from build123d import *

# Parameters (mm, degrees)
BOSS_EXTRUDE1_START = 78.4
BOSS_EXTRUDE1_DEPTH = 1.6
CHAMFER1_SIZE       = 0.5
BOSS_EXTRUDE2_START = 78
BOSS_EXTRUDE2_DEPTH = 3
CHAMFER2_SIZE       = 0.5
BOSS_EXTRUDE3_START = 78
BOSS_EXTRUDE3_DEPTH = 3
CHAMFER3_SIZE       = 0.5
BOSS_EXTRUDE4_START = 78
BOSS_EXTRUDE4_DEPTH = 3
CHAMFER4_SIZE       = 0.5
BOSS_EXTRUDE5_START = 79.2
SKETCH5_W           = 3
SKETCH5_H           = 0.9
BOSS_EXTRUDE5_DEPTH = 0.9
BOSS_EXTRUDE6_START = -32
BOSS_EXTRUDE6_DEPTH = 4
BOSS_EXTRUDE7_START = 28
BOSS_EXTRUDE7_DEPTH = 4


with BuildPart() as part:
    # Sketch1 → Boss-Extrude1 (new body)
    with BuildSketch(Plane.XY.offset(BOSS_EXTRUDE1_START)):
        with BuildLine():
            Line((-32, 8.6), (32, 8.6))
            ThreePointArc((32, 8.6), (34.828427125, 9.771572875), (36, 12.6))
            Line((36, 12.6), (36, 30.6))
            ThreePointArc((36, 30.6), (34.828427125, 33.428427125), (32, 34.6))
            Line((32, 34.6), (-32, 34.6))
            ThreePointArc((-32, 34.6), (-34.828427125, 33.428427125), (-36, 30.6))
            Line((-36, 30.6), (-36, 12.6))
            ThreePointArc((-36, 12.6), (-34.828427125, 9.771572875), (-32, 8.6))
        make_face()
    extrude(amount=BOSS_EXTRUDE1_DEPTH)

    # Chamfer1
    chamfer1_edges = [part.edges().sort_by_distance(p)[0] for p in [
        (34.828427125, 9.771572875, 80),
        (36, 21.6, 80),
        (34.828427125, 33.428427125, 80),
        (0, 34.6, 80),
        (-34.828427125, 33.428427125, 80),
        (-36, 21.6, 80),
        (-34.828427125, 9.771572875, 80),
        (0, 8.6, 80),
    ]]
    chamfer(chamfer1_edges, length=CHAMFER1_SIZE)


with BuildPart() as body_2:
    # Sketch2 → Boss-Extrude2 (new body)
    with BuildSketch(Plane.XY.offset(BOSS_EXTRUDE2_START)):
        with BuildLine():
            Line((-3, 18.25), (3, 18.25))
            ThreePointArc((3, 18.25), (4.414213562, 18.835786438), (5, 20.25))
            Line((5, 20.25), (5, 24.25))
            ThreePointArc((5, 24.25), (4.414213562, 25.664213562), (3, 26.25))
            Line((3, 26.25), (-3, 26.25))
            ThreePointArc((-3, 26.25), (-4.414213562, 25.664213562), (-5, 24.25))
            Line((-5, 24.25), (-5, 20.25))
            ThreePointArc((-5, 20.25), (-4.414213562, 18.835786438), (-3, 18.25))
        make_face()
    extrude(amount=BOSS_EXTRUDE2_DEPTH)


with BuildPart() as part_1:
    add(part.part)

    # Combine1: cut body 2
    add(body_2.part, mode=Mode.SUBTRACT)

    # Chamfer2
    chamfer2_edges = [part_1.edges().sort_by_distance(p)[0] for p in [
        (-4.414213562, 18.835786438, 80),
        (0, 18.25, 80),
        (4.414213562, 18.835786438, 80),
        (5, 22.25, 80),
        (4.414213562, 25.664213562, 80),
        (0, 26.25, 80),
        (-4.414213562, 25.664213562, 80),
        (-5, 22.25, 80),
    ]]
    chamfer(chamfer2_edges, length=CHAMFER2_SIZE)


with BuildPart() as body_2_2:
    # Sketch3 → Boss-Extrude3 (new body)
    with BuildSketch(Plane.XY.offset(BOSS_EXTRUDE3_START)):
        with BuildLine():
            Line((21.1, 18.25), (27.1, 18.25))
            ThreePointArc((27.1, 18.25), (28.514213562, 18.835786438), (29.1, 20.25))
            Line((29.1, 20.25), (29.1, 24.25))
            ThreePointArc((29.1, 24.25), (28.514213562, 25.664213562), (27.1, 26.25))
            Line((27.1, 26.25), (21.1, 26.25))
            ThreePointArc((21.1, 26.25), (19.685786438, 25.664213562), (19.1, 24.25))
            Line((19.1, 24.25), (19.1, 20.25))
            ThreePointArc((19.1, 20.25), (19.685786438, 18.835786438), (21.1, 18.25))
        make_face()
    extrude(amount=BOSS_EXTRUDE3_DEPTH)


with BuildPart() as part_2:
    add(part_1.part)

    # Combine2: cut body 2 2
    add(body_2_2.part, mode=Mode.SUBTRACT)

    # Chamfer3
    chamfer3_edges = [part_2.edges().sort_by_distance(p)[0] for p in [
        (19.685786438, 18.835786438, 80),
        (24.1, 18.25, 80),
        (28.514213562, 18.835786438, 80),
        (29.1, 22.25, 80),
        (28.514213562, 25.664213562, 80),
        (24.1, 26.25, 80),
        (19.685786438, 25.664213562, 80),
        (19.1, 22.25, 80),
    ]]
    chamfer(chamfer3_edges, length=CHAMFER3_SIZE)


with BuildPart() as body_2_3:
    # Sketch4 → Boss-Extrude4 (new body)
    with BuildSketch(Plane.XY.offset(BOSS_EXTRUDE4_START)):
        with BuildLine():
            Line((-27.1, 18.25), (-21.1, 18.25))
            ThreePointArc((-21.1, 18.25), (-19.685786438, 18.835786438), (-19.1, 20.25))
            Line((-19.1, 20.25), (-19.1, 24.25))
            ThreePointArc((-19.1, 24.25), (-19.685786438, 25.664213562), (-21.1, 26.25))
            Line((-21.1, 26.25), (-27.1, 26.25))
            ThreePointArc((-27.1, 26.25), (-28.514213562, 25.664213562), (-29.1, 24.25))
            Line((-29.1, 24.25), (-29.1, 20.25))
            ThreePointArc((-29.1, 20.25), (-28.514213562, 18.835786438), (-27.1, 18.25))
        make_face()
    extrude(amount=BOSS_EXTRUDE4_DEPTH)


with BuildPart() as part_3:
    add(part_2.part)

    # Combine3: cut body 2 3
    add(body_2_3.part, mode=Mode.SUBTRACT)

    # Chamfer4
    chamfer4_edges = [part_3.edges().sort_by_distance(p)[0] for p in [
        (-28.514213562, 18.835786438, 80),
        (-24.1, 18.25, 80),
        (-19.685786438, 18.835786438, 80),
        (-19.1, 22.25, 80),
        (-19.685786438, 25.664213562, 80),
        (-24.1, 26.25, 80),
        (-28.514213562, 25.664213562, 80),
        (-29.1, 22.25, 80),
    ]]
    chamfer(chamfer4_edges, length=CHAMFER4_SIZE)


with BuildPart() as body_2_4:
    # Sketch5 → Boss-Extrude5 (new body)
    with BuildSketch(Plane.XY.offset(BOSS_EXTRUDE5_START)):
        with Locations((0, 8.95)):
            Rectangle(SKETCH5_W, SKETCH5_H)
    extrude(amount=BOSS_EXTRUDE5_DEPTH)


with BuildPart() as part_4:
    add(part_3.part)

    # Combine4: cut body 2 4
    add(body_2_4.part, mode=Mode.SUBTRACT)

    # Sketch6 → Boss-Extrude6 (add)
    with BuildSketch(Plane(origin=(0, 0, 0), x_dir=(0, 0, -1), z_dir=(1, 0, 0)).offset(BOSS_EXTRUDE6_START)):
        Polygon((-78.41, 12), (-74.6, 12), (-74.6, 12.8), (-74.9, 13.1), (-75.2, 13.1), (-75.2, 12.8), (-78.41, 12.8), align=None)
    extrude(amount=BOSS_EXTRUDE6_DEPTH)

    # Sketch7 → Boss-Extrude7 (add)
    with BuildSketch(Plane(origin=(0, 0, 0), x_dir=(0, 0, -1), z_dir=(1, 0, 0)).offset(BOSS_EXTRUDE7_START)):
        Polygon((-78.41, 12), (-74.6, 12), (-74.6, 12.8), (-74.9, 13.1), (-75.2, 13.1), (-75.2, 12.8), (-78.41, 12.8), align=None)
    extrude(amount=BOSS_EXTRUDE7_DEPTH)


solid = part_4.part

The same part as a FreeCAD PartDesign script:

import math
import FreeCAD as App
import Part
import Sketcher

V = App.Vector
Q = App.Units.Quantity


def edges_at(feature, points):
    """Names of the edges that pass closest to the given points."""
    edges = feature.Shape.Edges
    near = lambda p: min(range(len(edges)), key=lambda i: edges[i].distToShape(Part.Vertex(*p))[0])
    return sorted({f"Edge{near(p) + 1}" for p in points})


def add_polygon(sketch, points):
    """Adds a closed chain of lines whose ends are joined by coincident constraints."""
    first, n = sketch.GeometryCount, len(points)
    for a, b in zip(points, points[1:] + points[:1]):
        sketch.addGeometry(Part.LineSegment(App.Vector(*a, 0), App.Vector(*b, 0)), False)
    for i in range(n):
        sketch.addConstraint(Sketcher.Constraint("Coincident", first + i, 2, first + (i + 1) % n, 1))

doc = App.newDocument("Part")
params = doc.addObject("Spreadsheet::Sheet", "Params")
for row, (alias, value) in enumerate([
    ("sketch1_radius", "4 mm"),
    ("sketch1_width", "64 mm"),
    ("sketch1_height", "18 mm"),
    ("pad1_length", "1.6 mm"),
    ("chamfer_size", "0.5 mm"),
    ("sketch2_radius", "2 mm"),
    ("sketch2_width", "6 mm"),
    ("sketch2_height", "4 mm"),
    ("pad2_length", "3 mm"),
    ("chamfer2_size", "0.5 mm"),
    ("sketch3_radius", "2 mm"),
    ("sketch3_width", "6 mm"),
    ("sketch3_height", "4 mm"),
    ("pad3_length", "3 mm"),
    ("chamfer3_size", "0.5 mm"),
    ("sketch4_radius", "2 mm"),
    ("sketch4_width", "6 mm"),
    ("sketch4_height", "4 mm"),
    ("pad4_length", "3 mm"),
    ("chamfer4_size", "0.5 mm"),
    ("sketch5_width", "3 mm"),
    ("sketch5_height", "0.9 mm"),
    ("pad5_length", "0.9 mm"),
    ("sketch6_width", "0.8 mm"),
    ("sketch6_width2", "0.3 mm"),
    ("sketch6_height", "3.81 mm"),
    ("pad6_length", "4 mm"),
    ("sketch7_width", "0.8 mm"),
    ("sketch7_width2", "0.3 mm"),
    ("sketch7_height", "3.81 mm"),
    ("pad7_length", "4 mm"),
], start=1):
    params.set(f"A{row}", alias)
    params.set(f"B{row}", "=" + value)
    params.setAlias(f"B{row}", alias)

body = doc.addObject("PartDesign::Body", "Body")

# Sketch on XY plane
sketch1 = body.newObject("Sketcher::SketchObject", "Sketch")
sketch1.AttachmentSupport = (doc.getObject("XY_Plane"), [""])
sketch1.MapMode = "FlatFace"
sketch1.AttachmentOffset = App.Placement(V(0, 0, 78.4), App.Rotation())
sketch1.addGeometry([
    Part.LineSegment(V(-32, 8.6, 0), V(32, 8.6, 0)),  # 0
    Part.ArcOfCircle(Part.Circle(V(32, 12.6, 0), V(0, 0, 1), 4), math.radians(-90), math.radians(0)),  # 1
    Part.LineSegment(V(36, 12.6, 0), V(36, 30.6, 0)),  # 2
    Part.ArcOfCircle(Part.Circle(V(32, 30.6, 0), V(0, 0, 1), 4), math.radians(0), math.radians(90)),  # 3
    Part.LineSegment(V(32, 34.6, 0), V(-32, 34.6, 0)),  # 4
    Part.ArcOfCircle(Part.Circle(V(-32, 30.6, 0), V(0, 0, 1), 4), math.radians(90), math.radians(180)),  # 5
    Part.LineSegment(V(-36, 30.6, 0), V(-36, 12.6, 0)),  # 6
    Part.ArcOfCircle(Part.Circle(V(-32, 12.6, 0), V(0, 0, 1), 4), math.radians(180), math.radians(270)),  # 7
], False)
sketch1.addConstraint([
    Sketcher.Constraint("Tangent", 0, 2, 1, 1),
    Sketcher.Constraint("Tangent", 1, 2, 2, 1),
    Sketcher.Constraint("Tangent", 2, 2, 3, 1),
    Sketcher.Constraint("Tangent", 3, 2, 4, 1),
    Sketcher.Constraint("Tangent", 4, 2, 5, 1),
    Sketcher.Constraint("Tangent", 5, 2, 6, 1),
    Sketcher.Constraint("Tangent", 6, 2, 7, 1),
    Sketcher.Constraint("Tangent", 7, 2, 0, 1),
    Sketcher.Constraint("Horizontal", 0),
    Sketcher.Constraint("Vertical", 2),
    Sketcher.Constraint("Horizontal", 4),
    Sketcher.Constraint("Vertical", 6),
    Sketcher.Constraint("Equal", 1, 3),
    Sketcher.Constraint("Equal", 3, 5),
    Sketcher.Constraint("Equal", 5, 7),
    Sketcher.Constraint("Radius", 1, 4.0),
    Sketcher.Constraint("DistanceX", 0, 1, 0, 2, 64.0),
    Sketcher.Constraint("DistanceY", 2, 1, 2, 2, 18.0),
    Sketcher.Constraint("DistanceX", -1, 1, 1, 3, 32.0),
    Sketcher.Constraint("DistanceY", -1, 1, 1, 3, 12.6),
])
sketch1.setExpression("Constraints[15]", "Params.sketch1_radius")
sketch1.setExpression("Constraints[16]", "Params.sketch1_width")
sketch1.setExpression("Constraints[17]", "Params.sketch1_height")
pad1 = body.newObject("PartDesign::Pad", "Pad")
pad1.Profile = sketch1
pad1.setExpression("Length", "Params.pad1_length")
doc.recompute()

chamfer = body.newObject("PartDesign::Chamfer", "Chamfer")
chamfer.Base = (pad1, edges_at(pad1, [
    (34.828, 9.772, 80),
    (36, 21.6, 80),
    (34.828, 33.428, 80),
    (0, 34.6, 80),
    (-34.828, 33.428, 80),
    (-36, 21.6, 80),
    (-34.828, 9.772, 80),
    (0, 8.6, 80),
]))
chamfer.setExpression("Size", "Params.chamfer_size")
body2 = doc.addObject("PartDesign::Body", "Body001")

# Sketch on XY plane
sketch2 = body2.newObject("Sketcher::SketchObject", "Sketch001")
sketch2.AttachmentSupport = (doc.getObject("XY_Plane001"), [""])
sketch2.MapMode = "FlatFace"
sketch2.AttachmentOffset = App.Placement(V(0, 0, 78), App.Rotation())
sketch2.addGeometry([
    Part.LineSegment(V(-3, 18.2, 0), V(3, 18.2, 0)),  # 0
    Part.ArcOfCircle(Part.Circle(V(3, 20.3, 0), V(0, 0, 1), 2), math.radians(-90), math.radians(0)),  # 1
    Part.LineSegment(V(5, 20.2, 0), V(5, 24.2, 0)),  # 2
    Part.ArcOfCircle(Part.Circle(V(3, 24.2, 0), V(0, 0, 1), 2), math.radians(0), math.radians(90)),  # 3
    Part.LineSegment(V(3, 26.2, 0), V(-3, 26.2, 0)),  # 4
    Part.ArcOfCircle(Part.Circle(V(-3, 24.2, 0), V(0, 0, 1), 2), math.radians(90), math.radians(180)),  # 5
    Part.LineSegment(V(-5, 24.2, 0), V(-5, 20.2, 0)),  # 6
    Part.ArcOfCircle(Part.Circle(V(-3, 20.3, 0), V(0, 0, 1), 2), math.radians(-180), math.radians(-90)),  # 7
], False)
sketch2.addConstraint([
    Sketcher.Constraint("Tangent", 0, 2, 1, 1),
    Sketcher.Constraint("Tangent", 1, 2, 2, 1),
    Sketcher.Constraint("Tangent", 2, 2, 3, 1),
    Sketcher.Constraint("Tangent", 3, 2, 4, 1),
    Sketcher.Constraint("Tangent", 4, 2, 5, 1),
    Sketcher.Constraint("Tangent", 5, 2, 6, 1),
    Sketcher.Constraint("Tangent", 6, 2, 7, 1),
    Sketcher.Constraint("Tangent", 7, 2, 0, 1),
    Sketcher.Constraint("Horizontal", 0),
    Sketcher.Constraint("Vertical", 2),
    Sketcher.Constraint("Horizontal", 4),
    Sketcher.Constraint("Vertical", 6),
    Sketcher.Constraint("Equal", 1, 3),
    Sketcher.Constraint("Equal", 3, 5),
    Sketcher.Constraint("Equal", 5, 7),
    Sketcher.Constraint("Radius", 1, 2.0),
    Sketcher.Constraint("DistanceX", 0, 1, 0, 2, 6.0),
    Sketcher.Constraint("DistanceY", 2, 1, 2, 2, 4.0),
    Sketcher.Constraint("DistanceX", -1, 1, 1, 3, 3.0),
    Sketcher.Constraint("DistanceY", -1, 1, 1, 3, 20.25),
])
sketch2.setExpression("Constraints[15]", "Params.sketch2_radius")
sketch2.setExpression("Constraints[16]", "Params.sketch2_width")
sketch2.setExpression("Constraints[17]", "Params.sketch2_height")
pad2 = body2.newObject("PartDesign::Pad", "Pad001")
pad2.Profile = sketch2
pad2.setExpression("Length", "Params.pad2_length")
doc.recompute()

boolean = body.newObject("PartDesign::Boolean", "Boolean")
boolean.Type = "Cut"
boolean.addObjects([body2])
doc.recompute()

chamfer2 = body.newObject("PartDesign::Chamfer", "Chamfer001")
chamfer2.Base = (boolean, edges_at(boolean, [
    (-4.414, 18.836, 80),
    (0, 18.25, 80),
    (4.414, 18.836, 80),
    (5, 22.25, 80),
    (4.414, 25.664, 80),
    (0, 26.25, 80),
    (-4.414, 25.664, 80),
    (-5, 22.25, 80),
]))
chamfer2.setExpression("Size", "Params.chamfer2_size")
body3 = doc.addObject("PartDesign::Body", "Body002")

# Sketch on XY plane
sketch3 = body3.newObject("Sketcher::SketchObject", "Sketch002")
sketch3.AttachmentSupport = (doc.getObject("XY_Plane002"), [""])
sketch3.MapMode = "FlatFace"
sketch3.AttachmentOffset = App.Placement(V(0, 0, 78), App.Rotation())
sketch3.addGeometry([
    Part.LineSegment(V(21.1, 18.2, 0), V(27.1, 18.2, 0)),  # 0
    Part.ArcOfCircle(Part.Circle(V(27.1, 20.3, 0), V(0, 0, 1), 2), math.radians(-90), math.radians(0)),  # 1
    Part.LineSegment(V(29.1, 20.2, 0), V(29.1, 24.2, 0)),  # 2
    Part.ArcOfCircle(Part.Circle(V(27.1, 24.2, 0), V(0, 0, 1), 2), math.radians(0), math.radians(90)),  # 3
    Part.LineSegment(V(27.1, 26.2, 0), V(21.1, 26.2, 0)),  # 4
    Part.ArcOfCircle(Part.Circle(V(21.1, 24.2, 0), V(0, 0, 1), 2), math.radians(90), math.radians(180)),  # 5
    Part.LineSegment(V(19.1, 24.2, 0), V(19.1, 20.2, 0)),  # 6
    Part.ArcOfCircle(Part.Circle(V(21.1, 20.3, 0), V(0, 0, 1), 2), math.radians(-180), math.radians(-90)),  # 7
], False)
sketch3.addConstraint([
    Sketcher.Constraint("Tangent", 0, 2, 1, 1),
    Sketcher.Constraint("Tangent", 1, 2, 2, 1),
    Sketcher.Constraint("Tangent", 2, 2, 3, 1),
    Sketcher.Constraint("Tangent", 3, 2, 4, 1),
    Sketcher.Constraint("Tangent", 4, 2, 5, 1),
    Sketcher.Constraint("Tangent", 5, 2, 6, 1),
    Sketcher.Constraint("Tangent", 6, 2, 7, 1),
    Sketcher.Constraint("Tangent", 7, 2, 0, 1),
    Sketcher.Constraint("Horizontal", 0),
    Sketcher.Constraint("Vertical", 2),
    Sketcher.Constraint("Horizontal", 4),
    Sketcher.Constraint("Vertical", 6),
    Sketcher.Constraint("Equal", 1, 3),
    Sketcher.Constraint("Equal", 3, 5),
    Sketcher.Constraint("Equal", 5, 7),
    Sketcher.Constraint("Radius", 1, 2.0),
    Sketcher.Constraint("DistanceX", 0, 1, 0, 2, 6.0),
    Sketcher.Constraint("DistanceY", 2, 1, 2, 2, 4.0),
    Sketcher.Constraint("DistanceX", -1, 1, 1, 3, 27.1),
    Sketcher.Constraint("DistanceY", -1, 1, 1, 3, 20.25),
])
sketch3.setExpression("Constraints[15]", "Params.sketch3_radius")
sketch3.setExpression("Constraints[16]", "Params.sketch3_width")
sketch3.setExpression("Constraints[17]", "Params.sketch3_height")
pad3 = body3.newObject("PartDesign::Pad", "Pad002")
pad3.Profile = sketch3
pad3.setExpression("Length", "Params.pad3_length")
doc.recompute()

boolean2 = body.newObject("PartDesign::Boolean", "Boolean001")
boolean2.Type = "Cut"
boolean2.addObjects([body3])
doc.recompute()

chamfer3 = body.newObject("PartDesign::Chamfer", "Chamfer002")
chamfer3.Base = (boolean2, edges_at(boolean2, [
    (19.686, 18.836, 80),
    (24.1, 18.25, 80),
    (28.514, 18.836, 80),
    (29.1, 22.25, 80),
    (28.514, 25.664, 80),
    (24.1, 26.25, 80),
    (19.686, 25.664, 80),
    (19.1, 22.25, 80),
]))
chamfer3.setExpression("Size", "Params.chamfer3_size")
body4 = doc.addObject("PartDesign::Body", "Body003")

# Sketch on XY plane
sketch4 = body4.newObject("Sketcher::SketchObject", "Sketch003")
sketch4.AttachmentSupport = (doc.getObject("XY_Plane003"), [""])
sketch4.MapMode = "FlatFace"
sketch4.AttachmentOffset = App.Placement(V(0, 0, 78), App.Rotation())
sketch4.addGeometry([
    Part.LineSegment(V(-27.1, 18.2, 0), V(-21.1, 18.2, 0)),  # 0
    Part.ArcOfCircle(Part.Circle(V(-21.1, 20.3, 0), V(0, 0, 1), 2), math.radians(-90), math.radians(0)),  # 1
    Part.LineSegment(V(-19.1, 20.2, 0), V(-19.1, 24.2, 0)),  # 2
    Part.ArcOfCircle(Part.Circle(V(-21.1, 24.2, 0), V(0, 0, 1), 2), math.radians(0), math.radians(90)),  # 3
    Part.LineSegment(V(-21.1, 26.2, 0), V(-27.1, 26.2, 0)),  # 4
    Part.ArcOfCircle(Part.Circle(V(-27.1, 24.2, 0), V(0, 0, 1), 2), math.radians(90), math.radians(180)),  # 5
    Part.LineSegment(V(-29.1, 24.2, 0), V(-29.1, 20.2, 0)),  # 6
    Part.ArcOfCircle(Part.Circle(V(-27.1, 20.3, 0), V(0, 0, 1), 2), math.radians(-180), math.radians(-90)),  # 7
], False)
sketch4.addConstraint([
    Sketcher.Constraint("Tangent", 0, 2, 1, 1),
    Sketcher.Constraint("Tangent", 1, 2, 2, 1),
    Sketcher.Constraint("Tangent", 2, 2, 3, 1),
    Sketcher.Constraint("Tangent", 3, 2, 4, 1),
    Sketcher.Constraint("Tangent", 4, 2, 5, 1),
    Sketcher.Constraint("Tangent", 5, 2, 6, 1),
    Sketcher.Constraint("Tangent", 6, 2, 7, 1),
    Sketcher.Constraint("Tangent", 7, 2, 0, 1),
    Sketcher.Constraint("Horizontal", 0),
    Sketcher.Constraint("Vertical", 2),
    Sketcher.Constraint("Horizontal", 4),
    Sketcher.Constraint("Vertical", 6),
    Sketcher.Constraint("Equal", 1, 3),
    Sketcher.Constraint("Equal", 3, 5),
    Sketcher.Constraint("Equal", 5, 7),
    Sketcher.Constraint("Radius", 1, 2.0),
    Sketcher.Constraint("DistanceX", 0, 1, 0, 2, 6.0),
    Sketcher.Constraint("DistanceY", 2, 1, 2, 2, 4.0),
    Sketcher.Constraint("DistanceX", 1, 3, -1, 1, 21.1),
    Sketcher.Constraint("DistanceY", -1, 1, 1, 3, 20.25),
])
sketch4.setExpression("Constraints[15]", "Params.sketch4_radius")
sketch4.setExpression("Constraints[16]", "Params.sketch4_width")
sketch4.setExpression("Constraints[17]", "Params.sketch4_height")
pad4 = body4.newObject("PartDesign::Pad", "Pad003")
pad4.Profile = sketch4
pad4.setExpression("Length", "Params.pad4_length")
doc.recompute()

boolean3 = body.newObject("PartDesign::Boolean", "Boolean002")
boolean3.Type = "Cut"
boolean3.addObjects([body4])
doc.recompute()

chamfer4 = body.newObject("PartDesign::Chamfer", "Chamfer003")
chamfer4.Base = (boolean3, edges_at(boolean3, [
    (-28.514, 18.836, 80),
    (-24.1, 18.25, 80),
    (-19.686, 18.836, 80),
    (-19.1, 22.25, 80),
    (-19.686, 25.664, 80),
    (-24.1, 26.25, 80),
    (-28.514, 25.664, 80),
    (-29.1, 22.25, 80),
]))
chamfer4.setExpression("Size", "Params.chamfer4_size")
body5 = doc.addObject("PartDesign::Body", "Body004")

# Sketch on XY plane
sketch5 = body5.newObject("Sketcher::SketchObject", "Sketch004")
sketch5.AttachmentSupport = (doc.getObject("XY_Plane004"), [""])
sketch5.MapMode = "FlatFace"
sketch5.AttachmentOffset = App.Placement(V(0, 0, 79.2), App.Rotation())
add_polygon(sketch5, [(-1.5, 9.4), (-1.5, 8.5), (1.5, 8.5), (1.5, 9.4)])  # lines 0-3
sketch5.addConstraint([
    Sketcher.Constraint("Vertical", 0),
    Sketcher.Constraint("Horizontal", 1),
    Sketcher.Constraint("Vertical", 2),
    Sketcher.Constraint("Horizontal", 3),
    Sketcher.Constraint("DistanceX", 1, 1, 1, 2, 3.0),
    Sketcher.Constraint("DistanceY", 0, 2, 0, 1, 0.9),
    Sketcher.Constraint("DistanceX", 0, 2, -1, 1, 1.5),
    Sketcher.Constraint("DistanceY", -1, 1, 0, 2, 8.5),
])
sketch5.setExpression("Constraints[8]", "Params.sketch5_width")
sketch5.setExpression("Constraints[9]", "Params.sketch5_height")
pad5 = body5.newObject("PartDesign::Pad", "Pad004")
pad5.Profile = sketch5
pad5.setExpression("Length", "Params.pad5_length")
doc.recompute()

boolean4 = body.newObject("PartDesign::Boolean", "Boolean003")
boolean4.Type = "Cut"
boolean4.addObjects([body5])

# Sketch on YZ plane
sketch6 = body.newObject("Sketcher::SketchObject", "Sketch005")
sketch6.AttachmentSupport = (doc.getObject("YZ_Plane"), [""])
sketch6.MapMode = "FlatFace"
sketch6.AttachmentOffset = App.Placement(V(0, 0, -32), App.Rotation())
add_polygon(sketch6, [(12, 78.41), (12, 74.6), (12.8, 74.6), (13.1, 74.9), (13.1, 75.2), (12.8, 75.2), (12.8, 78.41)])  # lines 0-6
sketch6.addConstraint([
    Sketcher.Constraint("Vertical", 0),
    Sketcher.Constraint("Horizontal", 1),
    Sketcher.Constraint("Vertical", 3),
    Sketcher.Constraint("Horizontal", 4),
    Sketcher.Constraint("Vertical", 5),
    Sketcher.Constraint("Horizontal", 6),
    Sketcher.Constraint("Vertical", 1, 2, 4, 2),
    Sketcher.Constraint("Equal", 4, 3),
    Sketcher.Constraint("Angle", 2, Q("45 deg")),
    Sketcher.Constraint("DistanceX", 1, 1, 1, 2, 0.8),
    Sketcher.Constraint("DistanceX", 4, 2, 4, 1, 0.3),
    Sketcher.Constraint("DistanceX", -1, 1, 0, 2, 12.0),
    Sketcher.Constraint("DistanceY", 0, 2, 0, 1, 3.81),
    Sketcher.Constraint("DistanceY", -1, 1, 0, 2, 74.6),
])
sketch6.setExpression("Constraints[16]", "Params.sketch6_width")
sketch6.setExpression("Constraints[17]", "Params.sketch6_width2")
sketch6.setExpression("Constraints[19]", "Params.sketch6_height")
pad6 = body.newObject("PartDesign::Pad", "Pad005")
pad6.Profile = sketch6
pad6.setExpression("Length", "Params.pad6_length")

# Sketch on YZ plane
sketch7 = body.newObject("Sketcher::SketchObject", "Sketch006")
sketch7.AttachmentSupport = (doc.getObject("YZ_Plane"), [""])
sketch7.MapMode = "FlatFace"
sketch7.AttachmentOffset = App.Placement(V(0, 0, 28), App.Rotation())
add_polygon(sketch7, [(12, 78.41), (12, 74.6), (12.8, 74.6), (13.1, 74.9), (13.1, 75.2), (12.8, 75.2), (12.8, 78.41)])  # lines 0-6
sketch7.addConstraint([
    Sketcher.Constraint("Vertical", 0),
    Sketcher.Constraint("Horizontal", 1),
    Sketcher.Constraint("Vertical", 3),
    Sketcher.Constraint("Horizontal", 4),
    Sketcher.Constraint("Vertical", 5),
    Sketcher.Constraint("Horizontal", 6),
    Sketcher.Constraint("Vertical", 1, 2, 4, 2),
    Sketcher.Constraint("Equal", 4, 3),
    Sketcher.Constraint("Angle", 2, Q("45 deg")),
    Sketcher.Constraint("DistanceX", 1, 1, 1, 2, 0.8),
    Sketcher.Constraint("DistanceX", 4, 2, 4, 1, 0.3),
    Sketcher.Constraint("DistanceX", -1, 1, 0, 2, 12.0),
    Sketcher.Constraint("DistanceY", 0, 2, 0, 1, 3.81),
    Sketcher.Constraint("DistanceY", -1, 1, 0, 2, 74.6),
])
sketch7.setExpression("Constraints[16]", "Params.sketch7_width")
sketch7.setExpression("Constraints[17]", "Params.sketch7_width2")
sketch7.setExpression("Constraints[19]", "Params.sketch7_height")
pad7 = body.newObject("PartDesign::Pad", "Pad006")
pad7.Profile = sketch7
pad7.setExpression("Length", "Params.pad7_length")

doc.recompute()
